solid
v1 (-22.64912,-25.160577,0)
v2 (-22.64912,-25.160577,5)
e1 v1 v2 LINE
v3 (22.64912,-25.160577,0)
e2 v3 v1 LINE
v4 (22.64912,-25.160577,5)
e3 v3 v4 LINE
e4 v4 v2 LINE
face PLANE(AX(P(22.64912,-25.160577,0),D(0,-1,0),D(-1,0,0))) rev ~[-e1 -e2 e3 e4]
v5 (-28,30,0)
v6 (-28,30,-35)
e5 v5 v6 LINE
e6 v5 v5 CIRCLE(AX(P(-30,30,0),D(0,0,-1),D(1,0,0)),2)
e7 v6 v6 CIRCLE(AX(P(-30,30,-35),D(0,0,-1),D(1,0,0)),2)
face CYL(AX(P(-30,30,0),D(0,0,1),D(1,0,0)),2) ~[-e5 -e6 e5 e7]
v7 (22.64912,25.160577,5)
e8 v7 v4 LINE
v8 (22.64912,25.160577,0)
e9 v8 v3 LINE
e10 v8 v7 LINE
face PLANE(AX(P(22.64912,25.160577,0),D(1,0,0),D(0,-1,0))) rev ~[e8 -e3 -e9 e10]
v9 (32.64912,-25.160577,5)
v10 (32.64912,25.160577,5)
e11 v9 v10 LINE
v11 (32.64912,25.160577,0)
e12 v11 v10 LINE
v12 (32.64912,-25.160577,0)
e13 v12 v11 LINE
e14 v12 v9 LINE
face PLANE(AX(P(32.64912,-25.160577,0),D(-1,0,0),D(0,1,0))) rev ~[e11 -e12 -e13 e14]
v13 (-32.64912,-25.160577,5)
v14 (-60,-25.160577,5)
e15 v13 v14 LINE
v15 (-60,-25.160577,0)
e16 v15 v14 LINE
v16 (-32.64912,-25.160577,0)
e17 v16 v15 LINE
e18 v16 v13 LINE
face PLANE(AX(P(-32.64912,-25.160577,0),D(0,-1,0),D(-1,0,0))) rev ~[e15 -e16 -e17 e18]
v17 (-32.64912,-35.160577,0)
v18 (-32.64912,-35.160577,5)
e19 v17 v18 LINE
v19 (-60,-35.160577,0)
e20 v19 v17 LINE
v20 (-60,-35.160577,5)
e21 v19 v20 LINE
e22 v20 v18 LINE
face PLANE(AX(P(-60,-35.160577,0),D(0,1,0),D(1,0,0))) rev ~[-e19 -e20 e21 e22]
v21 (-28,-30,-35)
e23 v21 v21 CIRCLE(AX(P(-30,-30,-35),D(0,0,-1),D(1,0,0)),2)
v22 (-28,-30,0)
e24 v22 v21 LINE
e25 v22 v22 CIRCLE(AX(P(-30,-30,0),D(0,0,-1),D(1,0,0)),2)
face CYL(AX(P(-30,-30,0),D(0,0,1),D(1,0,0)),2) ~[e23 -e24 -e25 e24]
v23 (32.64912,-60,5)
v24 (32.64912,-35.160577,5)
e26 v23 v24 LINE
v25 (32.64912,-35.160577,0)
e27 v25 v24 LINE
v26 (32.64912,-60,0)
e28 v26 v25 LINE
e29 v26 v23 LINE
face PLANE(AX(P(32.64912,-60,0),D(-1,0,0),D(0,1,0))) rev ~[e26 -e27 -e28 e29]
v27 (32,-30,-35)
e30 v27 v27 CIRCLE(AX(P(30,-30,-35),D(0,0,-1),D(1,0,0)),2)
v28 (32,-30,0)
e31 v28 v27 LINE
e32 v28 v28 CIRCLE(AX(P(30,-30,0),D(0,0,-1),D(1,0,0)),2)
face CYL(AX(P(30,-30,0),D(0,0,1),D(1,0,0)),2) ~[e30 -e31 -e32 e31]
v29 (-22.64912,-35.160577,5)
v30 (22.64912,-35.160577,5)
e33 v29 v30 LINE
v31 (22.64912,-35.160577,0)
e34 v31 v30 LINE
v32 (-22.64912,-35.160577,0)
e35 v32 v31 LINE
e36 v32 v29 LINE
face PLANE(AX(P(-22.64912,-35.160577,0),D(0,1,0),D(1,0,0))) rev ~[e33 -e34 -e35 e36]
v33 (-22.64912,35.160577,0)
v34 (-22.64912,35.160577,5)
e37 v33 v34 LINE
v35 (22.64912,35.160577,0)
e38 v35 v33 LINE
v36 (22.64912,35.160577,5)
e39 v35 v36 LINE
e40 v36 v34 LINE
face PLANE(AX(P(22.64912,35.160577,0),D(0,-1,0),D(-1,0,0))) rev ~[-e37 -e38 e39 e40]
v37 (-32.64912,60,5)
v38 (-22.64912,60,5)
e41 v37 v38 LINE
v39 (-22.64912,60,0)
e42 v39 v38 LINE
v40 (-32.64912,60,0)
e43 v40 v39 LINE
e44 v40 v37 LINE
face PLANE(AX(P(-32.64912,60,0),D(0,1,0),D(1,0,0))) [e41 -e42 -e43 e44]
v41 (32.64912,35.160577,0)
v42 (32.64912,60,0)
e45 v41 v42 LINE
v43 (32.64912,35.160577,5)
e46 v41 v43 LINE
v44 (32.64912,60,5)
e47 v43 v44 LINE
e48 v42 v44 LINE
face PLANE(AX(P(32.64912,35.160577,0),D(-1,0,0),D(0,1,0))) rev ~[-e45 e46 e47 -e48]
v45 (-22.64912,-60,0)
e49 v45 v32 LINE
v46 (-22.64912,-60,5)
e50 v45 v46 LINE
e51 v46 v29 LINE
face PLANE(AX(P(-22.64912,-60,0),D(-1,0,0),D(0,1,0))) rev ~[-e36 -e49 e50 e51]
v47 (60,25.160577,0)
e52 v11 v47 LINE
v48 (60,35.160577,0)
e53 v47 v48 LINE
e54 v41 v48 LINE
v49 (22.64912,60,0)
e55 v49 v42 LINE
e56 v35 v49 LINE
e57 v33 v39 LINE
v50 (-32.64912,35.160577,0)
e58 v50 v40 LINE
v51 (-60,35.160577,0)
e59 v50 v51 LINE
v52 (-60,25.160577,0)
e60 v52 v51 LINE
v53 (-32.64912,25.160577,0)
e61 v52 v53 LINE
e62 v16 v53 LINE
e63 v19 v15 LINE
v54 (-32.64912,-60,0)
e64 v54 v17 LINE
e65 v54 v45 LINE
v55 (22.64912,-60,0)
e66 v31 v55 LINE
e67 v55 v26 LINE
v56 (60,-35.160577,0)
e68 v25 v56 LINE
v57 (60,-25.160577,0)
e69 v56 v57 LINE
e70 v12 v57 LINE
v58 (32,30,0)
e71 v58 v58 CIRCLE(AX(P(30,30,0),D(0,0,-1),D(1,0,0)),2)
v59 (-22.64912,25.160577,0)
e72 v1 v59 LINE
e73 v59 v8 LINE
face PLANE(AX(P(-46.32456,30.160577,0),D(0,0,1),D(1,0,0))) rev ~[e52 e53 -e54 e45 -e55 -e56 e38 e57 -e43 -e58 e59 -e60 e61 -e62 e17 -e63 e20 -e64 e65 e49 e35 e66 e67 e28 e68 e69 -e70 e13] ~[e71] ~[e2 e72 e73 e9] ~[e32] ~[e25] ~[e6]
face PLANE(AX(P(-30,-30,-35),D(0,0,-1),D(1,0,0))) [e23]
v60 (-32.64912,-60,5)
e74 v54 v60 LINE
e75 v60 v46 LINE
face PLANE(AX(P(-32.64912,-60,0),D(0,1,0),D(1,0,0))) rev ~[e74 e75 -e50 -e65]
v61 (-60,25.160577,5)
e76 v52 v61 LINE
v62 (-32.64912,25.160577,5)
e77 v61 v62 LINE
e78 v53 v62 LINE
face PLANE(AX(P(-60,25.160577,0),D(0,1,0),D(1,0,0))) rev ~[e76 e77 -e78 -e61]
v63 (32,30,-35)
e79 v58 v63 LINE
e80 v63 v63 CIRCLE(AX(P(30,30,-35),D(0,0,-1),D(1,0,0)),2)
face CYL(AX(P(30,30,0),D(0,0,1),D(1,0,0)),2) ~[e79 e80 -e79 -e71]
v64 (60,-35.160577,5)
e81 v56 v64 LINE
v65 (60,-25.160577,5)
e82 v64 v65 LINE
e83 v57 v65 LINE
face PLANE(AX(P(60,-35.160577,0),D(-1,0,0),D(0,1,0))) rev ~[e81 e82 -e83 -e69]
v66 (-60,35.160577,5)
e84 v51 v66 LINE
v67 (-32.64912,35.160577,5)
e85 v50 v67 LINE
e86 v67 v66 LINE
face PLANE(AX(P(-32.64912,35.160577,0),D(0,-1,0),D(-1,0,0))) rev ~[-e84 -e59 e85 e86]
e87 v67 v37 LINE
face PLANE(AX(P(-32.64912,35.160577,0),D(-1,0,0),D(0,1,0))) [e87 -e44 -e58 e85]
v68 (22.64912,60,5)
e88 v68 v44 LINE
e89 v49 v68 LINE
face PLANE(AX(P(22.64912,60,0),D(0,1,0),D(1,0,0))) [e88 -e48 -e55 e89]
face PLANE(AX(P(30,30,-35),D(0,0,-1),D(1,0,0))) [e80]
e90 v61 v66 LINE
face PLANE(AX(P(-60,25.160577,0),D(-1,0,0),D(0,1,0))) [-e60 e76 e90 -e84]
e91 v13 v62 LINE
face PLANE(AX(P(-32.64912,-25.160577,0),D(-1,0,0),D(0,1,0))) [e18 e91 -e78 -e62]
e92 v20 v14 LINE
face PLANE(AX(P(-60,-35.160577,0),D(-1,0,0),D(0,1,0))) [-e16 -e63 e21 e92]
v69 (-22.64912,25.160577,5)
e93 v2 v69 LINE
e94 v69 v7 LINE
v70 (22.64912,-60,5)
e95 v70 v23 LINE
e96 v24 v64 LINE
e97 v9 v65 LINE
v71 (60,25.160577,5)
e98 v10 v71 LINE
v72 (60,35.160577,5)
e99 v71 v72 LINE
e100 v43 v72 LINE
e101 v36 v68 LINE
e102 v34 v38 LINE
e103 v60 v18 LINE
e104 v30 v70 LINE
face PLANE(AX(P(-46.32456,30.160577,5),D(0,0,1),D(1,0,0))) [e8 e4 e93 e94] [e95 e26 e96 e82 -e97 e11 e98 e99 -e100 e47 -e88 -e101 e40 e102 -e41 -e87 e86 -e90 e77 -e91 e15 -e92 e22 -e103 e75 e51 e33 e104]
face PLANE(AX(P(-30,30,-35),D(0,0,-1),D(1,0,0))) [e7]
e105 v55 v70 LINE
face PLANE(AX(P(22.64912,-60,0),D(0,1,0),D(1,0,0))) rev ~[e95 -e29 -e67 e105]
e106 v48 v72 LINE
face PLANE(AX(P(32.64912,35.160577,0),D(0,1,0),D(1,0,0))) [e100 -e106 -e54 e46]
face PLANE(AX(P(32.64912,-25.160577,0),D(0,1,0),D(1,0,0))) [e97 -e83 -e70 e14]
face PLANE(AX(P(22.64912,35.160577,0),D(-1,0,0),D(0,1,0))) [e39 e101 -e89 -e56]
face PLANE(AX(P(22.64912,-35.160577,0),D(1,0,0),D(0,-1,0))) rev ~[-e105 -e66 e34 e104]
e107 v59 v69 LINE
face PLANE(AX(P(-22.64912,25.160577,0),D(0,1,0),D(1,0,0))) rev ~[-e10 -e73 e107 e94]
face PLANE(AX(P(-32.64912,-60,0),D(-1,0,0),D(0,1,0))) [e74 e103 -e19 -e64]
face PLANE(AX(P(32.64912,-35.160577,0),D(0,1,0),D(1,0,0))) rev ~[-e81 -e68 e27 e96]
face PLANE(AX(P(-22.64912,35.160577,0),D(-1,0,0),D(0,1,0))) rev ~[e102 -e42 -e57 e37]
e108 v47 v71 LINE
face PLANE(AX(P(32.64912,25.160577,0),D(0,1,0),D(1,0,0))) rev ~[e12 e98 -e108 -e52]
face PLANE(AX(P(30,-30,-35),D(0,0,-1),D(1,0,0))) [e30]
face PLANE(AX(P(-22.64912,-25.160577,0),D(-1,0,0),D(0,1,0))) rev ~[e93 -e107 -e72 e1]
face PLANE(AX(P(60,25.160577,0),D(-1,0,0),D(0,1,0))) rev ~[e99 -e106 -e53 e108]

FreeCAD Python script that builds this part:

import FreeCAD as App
import Part
import Sketcher
from FreeCAD import Vector


def add_polygon(sketch, points):
    """Adds a closed chain of lines whose ends are joined by coincident constraints."""
    first, n = sketch.GeometryCount, len(points)
    for a, b in zip(points, points[1:] + points[:1]):
        sketch.addGeometry(Part.LineSegment(App.Vector(*a, 0), App.Vector(*b, 0)), False)
    for i in range(n):
        sketch.addConstraint(Sketcher.Constraint("Coincident", first + i, 2, first + (i + 1) % n, 1))

doc = App.newDocument("Part")
body = doc.addObject("PartDesign::Body", "Body")

# Sketch on XY plane
sketch1 = doc.addObject("Sketcher::SketchObject", "Sketch")
body.addObject(sketch1)
sketch1.AttachmentSupport = (doc.XY_Plane, [""])
sketch1.MapMode = "FlatFace"
add_polygon(sketch1, [(-60, 35), (-60, 25), (-33, 25), (-33, -25), (-60, -25), (-60, -35), (-33, -35), (-33, -60), (-23, -60), (-23, -35), (23, -35), (23, -60), (33, -60), (33, -35), (60, -35), (60, -25), (33, -25), (33, 25), (60, 25), (60, 35), (33, 35), (33, 60), (23, 60), (23, 35), (-23, 35), (-23, 60), (-33, 60), (-33, 35)])  # lines 0-27
add_polygon(sketch1, [(-23, 25), (23, 25), (23, -25), (-23, -25)])  # lines 28-31
sketch1.addConstraint([
    Sketcher.Constraint("Vertical", 0),
    Sketcher.Constraint("Horizontal", 1),
    Sketcher.Constraint("Vertical", 2),
    Sketcher.Constraint("Horizontal", 3),
    Sketcher.Constraint("Vertical", 4),
    Sketcher.Constraint("Horizontal", 5),
    Sketcher.Constraint("Vertical", 6),
    Sketcher.Constraint("Horizontal", 7),
    Sketcher.Constraint("Vertical", 8),
    Sketcher.Constraint("Horizontal", 9),
    Sketcher.Constraint("Vertical", 10),
    Sketcher.Constraint("Horizontal", 11),
    Sketcher.Constraint("Vertical", 12),
    Sketcher.Constraint("Horizontal", 13),
    Sketcher.Constraint("Vertical", 14),
    Sketcher.Constraint("Horizontal", 15),
    Sketcher.Constraint("Vertical", 16),
    Sketcher.Constraint("Horizontal", 17),
    Sketcher.Constraint("Vertical", 18),
    Sketcher.Constraint("Horizontal", 19),
    Sketcher.Constraint("Vertical", 20),
    Sketcher.Constraint("Horizontal", 21),
    Sketcher.Constraint("Vertical", 22),
    Sketcher.Constraint("Horizontal", 23),
    Sketcher.Constraint("Vertical", 24),
    Sketcher.Constraint("Horizontal", 25),
    Sketcher.Constraint("Vertical", 26),
    Sketcher.Constraint("Horizontal", 27),
    Sketcher.Constraint("Horizontal", 28),
    Sketcher.Constraint("Vertical", 29),
    Sketcher.Constraint("Horizontal", 30),
    Sketcher.Constraint("Vertical", 31),
    Sketcher.Constraint("Symmetric", 0, 2, 14, 2, -1, 1),
    Sketcher.Constraint("Symmetric", 2, 2, 16, 2, -1, 1),
    Sketcher.Constraint("Symmetric", 4, 2, 18, 2, -1, 1),
    Sketcher.Constraint("Symmetric", 6, 2, 20, 2, -1, 1),
    Sketcher.Constraint("Symmetric", 8, 2, 22, 2, -1, 1),
    Sketcher.Constraint("Symmetric", 10, 2, 24, 2, -1, 1),
    Sketcher.Constraint("Symmetric", 12, 2, 26, 2, -1, 1),
    Sketcher.Constraint("Symmetric", 28, 2, 30, 2, -1, 1),
    Sketcher.Constraint("Symmetric", 7, 2, 10, 2, -2),
    Sketcher.Constraint("Symmetric", 5, 2, 12, 2, -2),
    Sketcher.Constraint("Symmetric", 3, 2, 14, 2, -2),
    Sketcher.Constraint("Horizontal", 5, 2, 8, 2),
    Sketcher.Constraint("Horizontal", 17, 2, 28, 2),
    Sketcher.Constraint("Vertical", 2, 2, 5, 2),
    Sketcher.Constraint("Vertical", 22, 2, 28, 2),
    Sketcher.Constraint("Equal", 25, 0),
    Sketcher.Constraint("DistanceX", 7, 1, 7, 2, 10.0),
    Sketcher.Constraint("DistanceX", 0, 2, -1, 1, 60.0),
    Sketcher.Constraint("DistanceY", 6, 2, -1, 1, 60.0),
    Sketcher.Constraint("DistanceX", 1, 1, 1, 2, 27.35088),
    Sketcher.Constraint("DistanceY", 2, 2, 2, 1, 50.321154),
])
pad1 = doc.addObject("PartDesign::Pad", "Pad")
body.addObject(pad1)
pad1.Profile = sketch1
pad1.Length = 5

# Sketch on XY plane
sketch2 = doc.addObject("Sketcher::SketchObject", "Sketch001")
body.addObject(sketch2)
sketch2.AttachmentSupport = (doc.XY_Plane, [""])
sketch2.MapMode = "FlatFace"
sketch2.addGeometry([
    Part.Circle(Vector(-30, -30, 0), Vector(0, 0, 1), 2),
    Part.Circle(Vector(30, -30, 0), Vector(0, 0, 1), 2),
    Part.Circle(Vector(30, 30, 0), Vector(0, 0, 1), 2),
    Part.Circle(Vector(-30, 30, 0), Vector(0, 0, 1), 2),
], False)
sketch2.addConstraint([
    Sketcher.Constraint("Equal", 0, 1),
    Sketcher.Constraint("Equal", 1, 2),
    Sketcher.Constraint("Equal", 2, 3),
    Sketcher.Constraint("Symmetric", 0, 3, 2, 3, -1, 1),
    Sketcher.Constraint("Symmetric", 1, 3, 3, 3, -1, 1),
    Sketcher.Constraint("Symmetric", 0, 3, 1, 3, -2),
    Sketcher.Constraint("Diameter", 0, 4.0),
    Sketcher.Constraint("DistanceX", 0, 3, -1, 1, 30.0),
    Sketcher.Constraint("DistanceY", 0, 3, -1, 1, 30.0),
])
pad2 = doc.addObject("PartDesign::Pad", "Pad001")
body.addObject(pad2)
pad2.Profile = sketch2
pad2.Length = 35
pad2.Reversed = True

doc.recompute()
